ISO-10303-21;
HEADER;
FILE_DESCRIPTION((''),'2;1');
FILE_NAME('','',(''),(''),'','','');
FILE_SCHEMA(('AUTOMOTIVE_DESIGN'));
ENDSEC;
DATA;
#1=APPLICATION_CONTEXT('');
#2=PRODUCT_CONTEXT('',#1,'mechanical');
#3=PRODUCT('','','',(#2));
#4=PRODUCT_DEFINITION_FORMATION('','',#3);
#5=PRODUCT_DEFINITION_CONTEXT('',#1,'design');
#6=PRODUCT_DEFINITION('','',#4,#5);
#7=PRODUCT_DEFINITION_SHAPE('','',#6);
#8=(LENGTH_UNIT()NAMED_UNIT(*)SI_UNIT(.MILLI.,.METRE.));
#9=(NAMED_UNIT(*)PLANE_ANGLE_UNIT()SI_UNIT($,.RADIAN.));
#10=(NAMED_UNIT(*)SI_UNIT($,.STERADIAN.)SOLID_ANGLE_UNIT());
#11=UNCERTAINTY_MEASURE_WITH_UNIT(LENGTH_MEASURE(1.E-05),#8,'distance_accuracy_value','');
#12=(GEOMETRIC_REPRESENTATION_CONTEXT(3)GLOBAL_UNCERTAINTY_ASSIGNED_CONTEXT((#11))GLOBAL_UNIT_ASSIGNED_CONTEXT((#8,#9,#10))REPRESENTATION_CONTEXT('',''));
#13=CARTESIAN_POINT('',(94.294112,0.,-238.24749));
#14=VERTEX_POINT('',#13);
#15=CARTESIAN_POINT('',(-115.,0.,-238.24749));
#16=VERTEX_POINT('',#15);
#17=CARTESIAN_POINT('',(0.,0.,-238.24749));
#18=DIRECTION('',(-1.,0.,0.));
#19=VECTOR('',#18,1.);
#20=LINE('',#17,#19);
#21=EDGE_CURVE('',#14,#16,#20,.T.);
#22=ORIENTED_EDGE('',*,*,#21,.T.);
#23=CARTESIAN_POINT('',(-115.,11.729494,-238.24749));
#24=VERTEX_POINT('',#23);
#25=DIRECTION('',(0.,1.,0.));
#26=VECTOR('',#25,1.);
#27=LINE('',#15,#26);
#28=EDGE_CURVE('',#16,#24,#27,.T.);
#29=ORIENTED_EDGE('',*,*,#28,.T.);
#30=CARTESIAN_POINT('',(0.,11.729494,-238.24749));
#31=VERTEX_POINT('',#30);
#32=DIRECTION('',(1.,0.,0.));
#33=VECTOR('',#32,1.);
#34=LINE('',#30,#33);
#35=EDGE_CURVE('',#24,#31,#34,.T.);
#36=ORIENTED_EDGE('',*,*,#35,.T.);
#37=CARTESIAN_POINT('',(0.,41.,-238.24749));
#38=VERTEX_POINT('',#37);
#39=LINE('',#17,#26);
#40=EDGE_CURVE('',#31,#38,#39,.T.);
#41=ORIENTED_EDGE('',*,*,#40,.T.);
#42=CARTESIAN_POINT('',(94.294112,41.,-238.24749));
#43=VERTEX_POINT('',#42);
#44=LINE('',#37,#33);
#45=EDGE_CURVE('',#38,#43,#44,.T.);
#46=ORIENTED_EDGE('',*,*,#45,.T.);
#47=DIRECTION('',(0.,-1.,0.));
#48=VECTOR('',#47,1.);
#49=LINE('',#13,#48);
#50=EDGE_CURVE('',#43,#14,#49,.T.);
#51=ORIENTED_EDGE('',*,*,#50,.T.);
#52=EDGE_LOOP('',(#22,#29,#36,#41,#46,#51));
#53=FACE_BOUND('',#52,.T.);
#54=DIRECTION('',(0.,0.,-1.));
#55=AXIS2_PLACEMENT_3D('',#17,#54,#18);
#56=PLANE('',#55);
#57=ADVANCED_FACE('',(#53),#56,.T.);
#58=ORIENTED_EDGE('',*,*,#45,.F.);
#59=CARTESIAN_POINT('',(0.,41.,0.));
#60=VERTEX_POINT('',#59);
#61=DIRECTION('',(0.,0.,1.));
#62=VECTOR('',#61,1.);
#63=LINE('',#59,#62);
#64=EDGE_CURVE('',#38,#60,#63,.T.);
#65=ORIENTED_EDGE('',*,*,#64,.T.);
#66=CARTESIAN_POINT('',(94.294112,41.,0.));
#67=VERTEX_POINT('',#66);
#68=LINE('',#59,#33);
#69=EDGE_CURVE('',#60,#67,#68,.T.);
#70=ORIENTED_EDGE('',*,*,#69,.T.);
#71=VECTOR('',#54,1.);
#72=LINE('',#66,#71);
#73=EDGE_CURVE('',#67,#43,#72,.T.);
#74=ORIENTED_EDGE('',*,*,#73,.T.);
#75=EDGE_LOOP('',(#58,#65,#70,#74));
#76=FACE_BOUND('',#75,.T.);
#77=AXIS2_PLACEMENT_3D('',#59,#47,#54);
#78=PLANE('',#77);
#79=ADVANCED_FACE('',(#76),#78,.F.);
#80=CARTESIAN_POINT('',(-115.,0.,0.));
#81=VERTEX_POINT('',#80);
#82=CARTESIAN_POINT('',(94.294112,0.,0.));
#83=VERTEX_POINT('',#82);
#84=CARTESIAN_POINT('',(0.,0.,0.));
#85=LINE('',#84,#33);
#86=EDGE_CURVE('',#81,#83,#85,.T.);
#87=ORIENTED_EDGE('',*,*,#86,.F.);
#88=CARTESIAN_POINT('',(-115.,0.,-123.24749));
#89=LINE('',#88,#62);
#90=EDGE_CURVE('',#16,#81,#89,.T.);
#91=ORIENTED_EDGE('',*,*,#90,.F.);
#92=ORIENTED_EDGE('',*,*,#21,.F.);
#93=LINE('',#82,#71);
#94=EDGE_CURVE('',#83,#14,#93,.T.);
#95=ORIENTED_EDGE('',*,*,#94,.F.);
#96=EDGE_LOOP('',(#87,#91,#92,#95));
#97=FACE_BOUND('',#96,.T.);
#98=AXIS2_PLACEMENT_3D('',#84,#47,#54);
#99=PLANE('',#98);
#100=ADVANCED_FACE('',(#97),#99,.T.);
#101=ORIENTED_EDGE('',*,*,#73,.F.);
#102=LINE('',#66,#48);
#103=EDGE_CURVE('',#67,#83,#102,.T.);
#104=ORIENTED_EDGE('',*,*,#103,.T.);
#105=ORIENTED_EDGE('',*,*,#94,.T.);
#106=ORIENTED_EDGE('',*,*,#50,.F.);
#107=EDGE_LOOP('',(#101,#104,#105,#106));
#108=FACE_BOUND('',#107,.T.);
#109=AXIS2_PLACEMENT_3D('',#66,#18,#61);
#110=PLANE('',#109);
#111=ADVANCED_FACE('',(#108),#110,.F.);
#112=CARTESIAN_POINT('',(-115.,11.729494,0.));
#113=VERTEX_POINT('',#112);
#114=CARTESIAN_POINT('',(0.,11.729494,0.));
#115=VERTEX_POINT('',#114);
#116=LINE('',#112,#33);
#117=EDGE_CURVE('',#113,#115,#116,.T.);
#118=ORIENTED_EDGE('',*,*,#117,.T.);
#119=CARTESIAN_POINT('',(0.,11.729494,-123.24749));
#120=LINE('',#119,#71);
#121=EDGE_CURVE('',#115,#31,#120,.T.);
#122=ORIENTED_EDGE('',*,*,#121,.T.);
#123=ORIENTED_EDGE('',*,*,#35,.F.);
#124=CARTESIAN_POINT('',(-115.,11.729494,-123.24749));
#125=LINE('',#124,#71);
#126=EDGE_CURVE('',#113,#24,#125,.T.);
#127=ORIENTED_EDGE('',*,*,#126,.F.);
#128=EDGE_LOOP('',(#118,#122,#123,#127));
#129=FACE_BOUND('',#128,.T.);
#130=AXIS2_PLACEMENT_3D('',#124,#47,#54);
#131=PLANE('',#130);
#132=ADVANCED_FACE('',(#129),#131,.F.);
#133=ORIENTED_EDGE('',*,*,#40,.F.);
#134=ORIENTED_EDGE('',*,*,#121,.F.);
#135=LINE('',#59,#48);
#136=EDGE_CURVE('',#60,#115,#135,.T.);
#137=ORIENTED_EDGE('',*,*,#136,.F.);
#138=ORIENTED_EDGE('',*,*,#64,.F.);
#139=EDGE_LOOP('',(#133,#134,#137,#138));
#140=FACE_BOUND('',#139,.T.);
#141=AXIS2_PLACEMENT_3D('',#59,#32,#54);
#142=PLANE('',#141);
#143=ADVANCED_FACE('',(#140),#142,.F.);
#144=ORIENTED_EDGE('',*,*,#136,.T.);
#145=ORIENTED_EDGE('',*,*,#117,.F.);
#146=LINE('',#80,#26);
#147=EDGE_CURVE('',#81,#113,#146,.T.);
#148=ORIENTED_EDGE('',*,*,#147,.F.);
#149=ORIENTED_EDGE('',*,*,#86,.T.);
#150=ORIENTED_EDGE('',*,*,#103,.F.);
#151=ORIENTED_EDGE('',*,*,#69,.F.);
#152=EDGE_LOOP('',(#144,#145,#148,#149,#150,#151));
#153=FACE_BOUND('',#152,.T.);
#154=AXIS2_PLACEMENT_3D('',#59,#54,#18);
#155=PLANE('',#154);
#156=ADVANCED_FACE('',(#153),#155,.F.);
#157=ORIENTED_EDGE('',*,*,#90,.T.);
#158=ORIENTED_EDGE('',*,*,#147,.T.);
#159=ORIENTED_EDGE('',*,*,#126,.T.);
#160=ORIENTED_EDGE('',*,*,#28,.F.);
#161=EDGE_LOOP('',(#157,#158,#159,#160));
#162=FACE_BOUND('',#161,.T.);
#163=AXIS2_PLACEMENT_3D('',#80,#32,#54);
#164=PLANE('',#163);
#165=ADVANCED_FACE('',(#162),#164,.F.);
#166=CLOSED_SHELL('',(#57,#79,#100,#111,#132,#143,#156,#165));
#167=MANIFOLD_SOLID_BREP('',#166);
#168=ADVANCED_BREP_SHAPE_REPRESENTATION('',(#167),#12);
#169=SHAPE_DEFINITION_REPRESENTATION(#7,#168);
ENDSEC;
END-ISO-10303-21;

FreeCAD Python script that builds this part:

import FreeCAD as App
import Part
import Sketcher
Q = App.Units.Quantity


def add_polygon(sketch, points):
    """Adds a closed chain of lines whose ends are joined by coincident constraints."""
    first, n = sketch.GeometryCount, len(points)
    for a, b in zip(points, points[1:] + points[:1]):
        sketch.addGeometry(Part.LineSegment(App.Vector(*a, 0), App.Vector(*b, 0)), False)
    for i in range(n):
        sketch.addConstraint(Sketcher.Constraint("Coincident", first + i, 2, first + (i + 1) % n, 1))

doc = App.newDocument("Part")
body = doc.addObject("PartDesign::Body", "Body")

sketch1 = body.newObject("Sketcher::SketchObject", "Sketch")
sketch1.AttachmentSupport = (doc.getObject("XZ_Plane"), [""])
sketch1.MapMode = "FlatFace"
add_polygon(sketch1, [(0, -123), (0, 0), (94, 0), (94, -123)])
sketch1.addConstraint([
    Sketcher.Constraint("Vertical", 0),
    Sketcher.Constraint("Horizontal", 1),
    Sketcher.Constraint("Vertical", 2),
    Sketcher.Constraint("Horizontal", 3),
    Sketcher.Constraint("Coincident", 0, 2, -1, 1),
    Sketcher.Constraint("DistanceX", 1, 1, 1, 2, Q("94.294112 mm")),
    Sketcher.Constraint("DistanceY", 0, 1, 0, 2, Q("123.24749 mm")),
])
pad1 = body.newObject("PartDesign::Pad", "Pad")
pad1.Profile = sketch1
pad1.Length = 41
pad1.Reversed = True

sketch2 = body.newObject("Sketcher::SketchObject", "Sketch001")
sketch2.AttachmentSupport = (doc.getObject("YZ_Plane"), [""])
sketch2.MapMode = "FlatFace"
add_polygon(sketch2, [(12, -123), (0, -123), (0, 0), (12, 0)])
sketch2.addConstraint([
    Sketcher.Constraint("Horizontal", 0),
    Sketcher.Constraint("Vertical", 1),
    Sketcher.Constraint("Horizontal", 2),
    Sketcher.Constraint("Vertical", 3),
    Sketcher.Constraint("Coincident", 1, 2, -1, 1),
    Sketcher.Constraint("DistanceY", 1, 1, 1, 2, Q("123.24749 mm")),
    Sketcher.Constraint("DistanceX", 0, 2, 0, 1, Q("11.729494 mm")),
])
pad2 = body.newObject("PartDesign::Pad", "Pad001")
pad2.Profile = sketch2
pad2.Length = 115
pad2.Reversed = True

sketch3 = body.newObject("Sketcher::SketchObject", "Sketch002")
sketch3.AttachmentSupport = (doc.getObject("XY_Plane"), [""])
sketch3.MapMode = "FlatFace"
sketch3.AttachmentOffset = App.Placement(App.Vector(0, 0, -123.24749), App.Rotation())
add_polygon(sketch3, [(94, 41), (94, 0), (0, 0), (-115, 0), (-115, 12), (0, 12), (0, 41)])
sketch3.addConstraint([
    Sketcher.Constraint("Vertical", 0),
    Sketcher.Constraint("Horizontal", 1),
    Sketcher.Constraint("Horizontal", 2),
    Sketcher.Constraint("Vertical", 3),
    Sketcher.Constraint("Horizontal", 4),
    Sketcher.Constraint("Vertical", 5),
    Sketcher.Constraint("Horizontal", 6),
    Sketcher.Constraint("Coincident", 1, 2, -1, 1),
    Sketcher.Constraint("PointOnObject", 4, 2, -2),
    Sketcher.Constraint("DistanceX", 2, 2, 2, 1, Q("115 mm")),
    Sketcher.Constraint("DistanceY", 0, 2, 0, 1, Q("41 mm")),
    Sketcher.Constraint("DistanceX", 1, 2, 1, 1, Q("94.294112 mm")),
    Sketcher.Constraint("DistanceY", 3, 1, 3, 2, Q("11.729494 mm")),
])
pad3 = body.newObject("PartDesign::Pad", "Pad002")
pad3.Profile = sketch3
pad3.Length = 115
pad3.Reversed = True

doc.recompute()
